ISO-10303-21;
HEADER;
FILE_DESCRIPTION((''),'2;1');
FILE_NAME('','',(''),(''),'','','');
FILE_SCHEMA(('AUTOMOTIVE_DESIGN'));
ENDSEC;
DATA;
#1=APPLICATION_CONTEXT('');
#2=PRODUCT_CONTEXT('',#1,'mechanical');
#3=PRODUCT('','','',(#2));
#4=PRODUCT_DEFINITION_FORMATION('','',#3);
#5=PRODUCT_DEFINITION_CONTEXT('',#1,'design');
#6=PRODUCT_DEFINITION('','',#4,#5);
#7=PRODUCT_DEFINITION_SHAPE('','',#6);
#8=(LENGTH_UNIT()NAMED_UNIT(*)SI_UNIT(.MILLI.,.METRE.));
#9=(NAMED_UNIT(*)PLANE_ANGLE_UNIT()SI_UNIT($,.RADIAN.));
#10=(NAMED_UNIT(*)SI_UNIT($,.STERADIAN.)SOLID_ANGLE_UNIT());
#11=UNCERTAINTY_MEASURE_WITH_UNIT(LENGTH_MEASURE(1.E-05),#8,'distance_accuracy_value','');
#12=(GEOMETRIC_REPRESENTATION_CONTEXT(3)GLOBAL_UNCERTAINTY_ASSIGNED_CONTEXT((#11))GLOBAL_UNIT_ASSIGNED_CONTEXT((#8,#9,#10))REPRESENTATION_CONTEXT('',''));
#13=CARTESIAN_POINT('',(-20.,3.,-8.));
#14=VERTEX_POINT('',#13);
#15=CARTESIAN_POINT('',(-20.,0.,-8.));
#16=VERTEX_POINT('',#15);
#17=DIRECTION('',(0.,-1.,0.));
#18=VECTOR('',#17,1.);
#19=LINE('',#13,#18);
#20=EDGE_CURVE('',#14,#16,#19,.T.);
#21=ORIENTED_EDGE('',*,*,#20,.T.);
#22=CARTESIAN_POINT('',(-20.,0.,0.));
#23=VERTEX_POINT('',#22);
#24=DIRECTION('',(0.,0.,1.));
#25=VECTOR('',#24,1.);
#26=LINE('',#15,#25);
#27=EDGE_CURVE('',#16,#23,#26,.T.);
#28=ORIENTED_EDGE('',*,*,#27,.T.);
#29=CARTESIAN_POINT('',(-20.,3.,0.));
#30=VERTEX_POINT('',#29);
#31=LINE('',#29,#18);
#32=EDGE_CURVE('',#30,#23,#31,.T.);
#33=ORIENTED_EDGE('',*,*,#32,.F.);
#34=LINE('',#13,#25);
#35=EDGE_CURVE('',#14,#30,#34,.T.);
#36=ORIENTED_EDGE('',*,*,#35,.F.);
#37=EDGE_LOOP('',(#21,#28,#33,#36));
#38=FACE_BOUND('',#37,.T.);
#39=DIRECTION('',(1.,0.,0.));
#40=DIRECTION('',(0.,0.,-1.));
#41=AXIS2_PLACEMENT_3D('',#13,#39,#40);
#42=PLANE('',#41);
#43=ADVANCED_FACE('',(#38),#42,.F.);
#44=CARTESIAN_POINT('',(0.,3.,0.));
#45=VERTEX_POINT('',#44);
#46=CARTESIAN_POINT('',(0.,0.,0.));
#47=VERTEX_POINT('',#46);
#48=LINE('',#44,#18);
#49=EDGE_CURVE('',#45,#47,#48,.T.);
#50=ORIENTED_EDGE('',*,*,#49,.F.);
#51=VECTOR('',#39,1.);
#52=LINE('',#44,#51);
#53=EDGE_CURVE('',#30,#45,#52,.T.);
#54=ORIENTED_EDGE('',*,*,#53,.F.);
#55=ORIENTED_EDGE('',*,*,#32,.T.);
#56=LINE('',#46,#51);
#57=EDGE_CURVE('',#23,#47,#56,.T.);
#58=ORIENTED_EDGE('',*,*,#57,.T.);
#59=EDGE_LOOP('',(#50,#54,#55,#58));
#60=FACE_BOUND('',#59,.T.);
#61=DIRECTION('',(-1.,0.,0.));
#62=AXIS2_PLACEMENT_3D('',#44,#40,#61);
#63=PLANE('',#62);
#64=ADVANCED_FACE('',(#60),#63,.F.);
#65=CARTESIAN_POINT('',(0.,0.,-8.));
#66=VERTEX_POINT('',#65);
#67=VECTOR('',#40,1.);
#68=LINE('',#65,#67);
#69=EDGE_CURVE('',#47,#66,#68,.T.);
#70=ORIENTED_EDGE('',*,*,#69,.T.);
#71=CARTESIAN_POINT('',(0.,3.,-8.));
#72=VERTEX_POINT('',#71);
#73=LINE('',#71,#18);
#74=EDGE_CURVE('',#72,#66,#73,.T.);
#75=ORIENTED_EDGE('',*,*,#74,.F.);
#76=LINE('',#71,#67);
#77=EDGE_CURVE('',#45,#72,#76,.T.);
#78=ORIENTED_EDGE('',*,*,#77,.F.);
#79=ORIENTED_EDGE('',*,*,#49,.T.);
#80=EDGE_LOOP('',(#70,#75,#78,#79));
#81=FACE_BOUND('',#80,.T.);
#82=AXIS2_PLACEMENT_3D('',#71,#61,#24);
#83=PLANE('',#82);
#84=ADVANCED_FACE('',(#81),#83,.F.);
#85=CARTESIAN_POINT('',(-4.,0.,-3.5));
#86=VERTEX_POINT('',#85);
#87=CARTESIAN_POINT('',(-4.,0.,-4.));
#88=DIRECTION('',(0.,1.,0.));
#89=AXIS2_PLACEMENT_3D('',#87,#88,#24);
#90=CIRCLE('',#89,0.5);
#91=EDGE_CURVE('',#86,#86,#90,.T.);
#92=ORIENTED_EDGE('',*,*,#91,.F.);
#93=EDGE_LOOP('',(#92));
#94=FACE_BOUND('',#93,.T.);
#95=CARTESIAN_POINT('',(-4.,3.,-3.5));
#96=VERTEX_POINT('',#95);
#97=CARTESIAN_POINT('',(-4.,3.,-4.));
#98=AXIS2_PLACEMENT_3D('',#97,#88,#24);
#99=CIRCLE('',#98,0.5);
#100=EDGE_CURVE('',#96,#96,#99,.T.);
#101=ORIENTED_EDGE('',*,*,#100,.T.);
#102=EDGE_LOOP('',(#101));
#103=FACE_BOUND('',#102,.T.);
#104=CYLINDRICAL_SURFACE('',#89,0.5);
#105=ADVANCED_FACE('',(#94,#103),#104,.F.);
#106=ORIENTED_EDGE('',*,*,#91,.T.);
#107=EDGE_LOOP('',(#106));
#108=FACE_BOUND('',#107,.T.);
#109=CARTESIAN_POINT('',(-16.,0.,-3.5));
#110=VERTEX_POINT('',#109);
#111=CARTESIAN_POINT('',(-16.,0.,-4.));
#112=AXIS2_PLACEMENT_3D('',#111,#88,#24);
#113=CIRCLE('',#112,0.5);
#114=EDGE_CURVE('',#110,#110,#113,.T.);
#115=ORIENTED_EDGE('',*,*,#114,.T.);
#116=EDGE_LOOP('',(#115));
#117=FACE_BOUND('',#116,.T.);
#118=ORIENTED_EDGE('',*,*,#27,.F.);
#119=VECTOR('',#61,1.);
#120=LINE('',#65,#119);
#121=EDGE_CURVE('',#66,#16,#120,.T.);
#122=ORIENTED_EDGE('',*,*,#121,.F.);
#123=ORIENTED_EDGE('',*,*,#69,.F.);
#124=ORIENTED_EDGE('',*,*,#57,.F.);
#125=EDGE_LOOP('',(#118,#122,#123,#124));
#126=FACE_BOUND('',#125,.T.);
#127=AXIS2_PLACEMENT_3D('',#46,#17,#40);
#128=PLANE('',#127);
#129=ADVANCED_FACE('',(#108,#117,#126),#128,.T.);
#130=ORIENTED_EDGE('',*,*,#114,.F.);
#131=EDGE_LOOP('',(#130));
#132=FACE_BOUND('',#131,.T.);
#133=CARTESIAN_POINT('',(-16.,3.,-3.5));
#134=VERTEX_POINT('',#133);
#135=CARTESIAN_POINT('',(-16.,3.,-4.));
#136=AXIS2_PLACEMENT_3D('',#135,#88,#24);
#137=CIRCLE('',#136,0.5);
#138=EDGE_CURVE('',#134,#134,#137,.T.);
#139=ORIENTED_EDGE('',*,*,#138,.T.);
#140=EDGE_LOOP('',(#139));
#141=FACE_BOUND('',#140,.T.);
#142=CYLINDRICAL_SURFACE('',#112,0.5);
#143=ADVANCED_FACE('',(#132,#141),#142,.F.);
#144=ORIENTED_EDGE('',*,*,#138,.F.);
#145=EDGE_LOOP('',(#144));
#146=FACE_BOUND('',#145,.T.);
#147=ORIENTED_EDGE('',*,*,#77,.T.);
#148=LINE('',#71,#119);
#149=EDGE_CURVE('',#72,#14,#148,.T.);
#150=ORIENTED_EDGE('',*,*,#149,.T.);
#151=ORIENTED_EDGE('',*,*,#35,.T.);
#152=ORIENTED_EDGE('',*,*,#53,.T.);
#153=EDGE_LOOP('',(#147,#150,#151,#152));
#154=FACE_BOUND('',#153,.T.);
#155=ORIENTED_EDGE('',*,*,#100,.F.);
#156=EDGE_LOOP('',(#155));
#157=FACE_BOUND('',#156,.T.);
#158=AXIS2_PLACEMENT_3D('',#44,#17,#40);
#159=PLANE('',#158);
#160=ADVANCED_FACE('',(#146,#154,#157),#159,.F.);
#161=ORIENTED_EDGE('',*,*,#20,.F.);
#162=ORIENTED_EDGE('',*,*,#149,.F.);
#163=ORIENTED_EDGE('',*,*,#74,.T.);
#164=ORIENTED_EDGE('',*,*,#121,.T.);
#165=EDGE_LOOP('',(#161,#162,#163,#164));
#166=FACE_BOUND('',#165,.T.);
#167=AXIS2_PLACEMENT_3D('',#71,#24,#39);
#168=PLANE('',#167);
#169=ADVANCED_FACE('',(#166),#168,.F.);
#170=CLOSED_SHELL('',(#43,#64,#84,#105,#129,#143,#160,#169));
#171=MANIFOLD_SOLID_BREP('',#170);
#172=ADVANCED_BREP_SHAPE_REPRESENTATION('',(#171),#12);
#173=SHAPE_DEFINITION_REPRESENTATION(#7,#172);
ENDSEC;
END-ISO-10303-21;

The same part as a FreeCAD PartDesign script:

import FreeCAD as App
import Part
import Sketcher
Q = App.Units.Quantity


def add_polygon(sketch, points):
    """Adds a closed chain of lines whose ends are joined by coincident constraints."""
    first, n = sketch.GeometryCount, len(points)
    for a, b in zip(points, points[1:] + points[:1]):
        sketch.addGeometry(Part.LineSegment(App.Vector(*a, 0), App.Vector(*b, 0)), False)
    for i in range(n):
        sketch.addConstraint(Sketcher.Constraint("Coincident", first + i, 2, first + (i + 1) % n, 1))

doc = App.newDocument("Part")
params = doc.addObject("Spreadsheet::Sheet", "Params")
for row, (alias, value) in enumerate([
    ("sketch1_width", "20 mm"),
    ("sketch1_height", "8 mm"),
    ("pad1_length", "3 mm"),
    ("sketch2_diameter", "1 mm"),
], start=1):
    params.set(f"A{row}", alias)
    params.set(f"B{row}", "=" + value)
    params.setAlias(f"B{row}", alias)

body = doc.addObject("PartDesign::Body", "Body")

# Sketch on XZ plane
sketch1 = body.newObject("Sketcher::SketchObject", "Sketch")
sketch1.AttachmentSupport = (doc.getObject("XZ_Plane"), [""])
sketch1.MapMode = "FlatFace"
add_polygon(sketch1, [(-20, -8), (-20, 0), (0, 0), (0, -8)])  # lines 0-3
sketch1.addConstraint([
    Sketcher.Constraint("Vertical", 0),
    Sketcher.Constraint("Horizontal", 1),
    Sketcher.Constraint("Vertical", 2),
    Sketcher.Constraint("Horizontal", 3),
    Sketcher.Constraint("Coincident", 1, 2, -1, 1),
    Sketcher.Constraint("DistanceX", 1, 1, 1, 2, Q("20 mm")),
    Sketcher.Constraint("DistanceY", 0, 1, 0, 2, Q("8 mm")),
])
sketch1.setExpression("Constraints[9]", "Params.sketch1_width")
sketch1.setExpression("Constraints[10]", "Params.sketch1_height")
pad1 = body.newObject("PartDesign::Pad", "Pad")
pad1.Profile = sketch1
pad1.setExpression("Length", "Params.pad1_length")
pad1.Reversed = True

# Sketch on XZ plane
sketch2 = body.newObject("Sketcher::SketchObject", "Sketch001")
sketch2.AttachmentSupport = (doc.getObject("XZ_Plane"), [""])
sketch2.MapMode = "FlatFace"
sketch2.AttachmentOffset = App.Placement(App.Vector(0, 0, -3), App.Rotation())
sketch2.addGeometry([
    Part.Circle(App.Vector(-16, -4, 0), App.Vector(0, 0, 1), 0.5),
    Part.Circle(App.Vector(-4, -4, 0), App.Vector(0, 0, 1), 0.5),
], False)
sketch2.addConstraint([
    Sketcher.Constraint("Equal", 0, 1),
    Sketcher.Constraint("Horizontal", 0, 3, 1, 3),
    Sketcher.Constraint("Diameter", 0, Q("1 mm")),
    Sketcher.Constraint("DistanceX", 0, 3, -1, 1, Q("16 mm")),
    Sketcher.Constraint("DistanceY", 0, 3, -1, 1, Q("4 mm")),
    Sketcher.Constraint("DistanceX", 1, 3, -1, 1, Q("4 mm")),
])
sketch2.setExpression("Constraints[2]", "Params.sketch2_diameter")
pocket1 = body.newObject("PartDesign::Pocket", "Pocket")
pocket1.Profile = sketch2
pocket1.Type = "ThroughAll"
pocket1.Reversed = True

doc.recompute()
